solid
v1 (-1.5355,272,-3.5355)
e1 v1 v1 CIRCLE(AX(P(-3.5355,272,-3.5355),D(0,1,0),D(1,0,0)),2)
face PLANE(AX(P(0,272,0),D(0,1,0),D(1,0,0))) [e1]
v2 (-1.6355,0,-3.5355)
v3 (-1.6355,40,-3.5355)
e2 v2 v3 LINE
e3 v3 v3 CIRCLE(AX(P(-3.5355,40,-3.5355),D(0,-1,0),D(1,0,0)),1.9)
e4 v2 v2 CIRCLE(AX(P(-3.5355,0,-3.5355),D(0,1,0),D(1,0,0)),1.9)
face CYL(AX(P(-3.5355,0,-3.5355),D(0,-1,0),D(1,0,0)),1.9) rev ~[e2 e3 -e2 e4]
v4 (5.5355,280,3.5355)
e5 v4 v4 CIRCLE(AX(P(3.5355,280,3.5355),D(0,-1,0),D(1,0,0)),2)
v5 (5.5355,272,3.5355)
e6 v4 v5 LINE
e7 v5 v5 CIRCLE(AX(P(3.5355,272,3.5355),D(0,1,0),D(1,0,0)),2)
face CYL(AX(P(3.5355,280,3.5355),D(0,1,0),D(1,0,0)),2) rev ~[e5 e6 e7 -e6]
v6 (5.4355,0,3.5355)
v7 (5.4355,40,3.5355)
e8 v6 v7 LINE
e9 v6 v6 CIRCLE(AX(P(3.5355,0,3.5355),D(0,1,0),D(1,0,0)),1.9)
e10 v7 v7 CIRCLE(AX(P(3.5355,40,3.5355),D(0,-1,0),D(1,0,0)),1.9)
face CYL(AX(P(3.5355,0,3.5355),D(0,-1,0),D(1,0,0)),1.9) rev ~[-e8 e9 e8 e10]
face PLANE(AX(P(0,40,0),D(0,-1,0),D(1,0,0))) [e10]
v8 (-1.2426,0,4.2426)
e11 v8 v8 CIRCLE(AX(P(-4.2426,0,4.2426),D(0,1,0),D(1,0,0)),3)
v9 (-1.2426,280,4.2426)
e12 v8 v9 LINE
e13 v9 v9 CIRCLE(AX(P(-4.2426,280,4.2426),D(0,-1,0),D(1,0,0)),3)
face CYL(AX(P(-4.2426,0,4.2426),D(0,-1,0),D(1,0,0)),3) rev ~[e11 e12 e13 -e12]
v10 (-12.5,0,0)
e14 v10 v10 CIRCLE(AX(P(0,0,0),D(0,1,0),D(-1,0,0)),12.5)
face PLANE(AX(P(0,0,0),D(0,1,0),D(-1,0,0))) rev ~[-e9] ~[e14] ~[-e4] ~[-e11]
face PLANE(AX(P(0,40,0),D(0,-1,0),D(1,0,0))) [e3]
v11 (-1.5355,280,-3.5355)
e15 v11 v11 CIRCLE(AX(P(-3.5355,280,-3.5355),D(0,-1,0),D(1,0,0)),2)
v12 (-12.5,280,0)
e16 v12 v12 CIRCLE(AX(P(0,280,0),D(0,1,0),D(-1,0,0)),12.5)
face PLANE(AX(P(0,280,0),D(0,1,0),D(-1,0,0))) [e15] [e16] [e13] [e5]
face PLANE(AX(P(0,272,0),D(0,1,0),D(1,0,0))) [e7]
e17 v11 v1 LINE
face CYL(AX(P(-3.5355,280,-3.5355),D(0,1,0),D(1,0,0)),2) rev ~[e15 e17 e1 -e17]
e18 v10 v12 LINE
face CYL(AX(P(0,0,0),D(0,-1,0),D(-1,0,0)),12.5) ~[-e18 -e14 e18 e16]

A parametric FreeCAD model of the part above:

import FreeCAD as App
import Part
import Sketcher

doc = App.newDocument("Part")
body = doc.addObject("PartDesign::Body", "Body")

sketch1 = doc.addObject("Sketcher::SketchObject", "Sketch")
body.addObject(sketch1)
sketch1.AttachmentSupport = (doc.XZ_Plane, [""])
sketch1.MapMode = "FlatFace"
sketch1.addGeometry(Part.Circle(App.Vector(0, 0, 0), App.Vector(0, 0, 1), 12), False)
sketch1.addConstraint([
    Sketcher.Constraint("Coincident", 0, 3, -1, 1),
    Sketcher.Constraint("Diameter", 0, 25.0),
])
pad1 = doc.addObject("PartDesign::Pad", "Pad")
body.addObject(pad1)
pad1.Profile = sketch1
pad1.Length = 280
pad1.Reversed = True

sketch2 = doc.addObject("Sketcher::SketchObject", "Sketch001")
body.addObject(sketch2)
sketch2.AttachmentSupport = (doc.XZ_Plane, [""])
sketch2.MapMode = "FlatFace"
sketch2.addGeometry([
    Part.Circle(App.Vector(3.5, 3.5, 0), App.Vector(0, 0, 1), 1.9),
    Part.Circle(App.Vector(-3.5, -3.5, 0), App.Vector(0, 0, 1), 1.9),
], False)
sketch2.addConstraint([
    Sketcher.Constraint("Equal", 0, 1),
    Sketcher.Constraint("Symmetric", 0, 3, 1, 3, -1, 1),
    Sketcher.Constraint("Diameter", 0, 3.8),
    Sketcher.Constraint("DistanceX", 1, 3, 0, 3, 7.071),
    Sketcher.Constraint("DistanceY", 1, 3, 0, 3, 7.071),
])
pocket1 = doc.addObject("PartDesign::Pocket", "Pocket")
body.addObject(pocket1)
pocket1.Profile = sketch2
pocket1.Length = 40

sketch3 = doc.addObject("Sketcher::SketchObject", "Sketch002")
body.addObject(sketch3)
sketch3.AttachmentSupport = (doc.XZ_Plane, [""])
sketch3.MapMode = "FlatFace"
sketch3.addGeometry(Part.Circle(App.Vector(-4.2, 4.2, 0), App.Vector(0, 0, 1), 3), False)
sketch3.addConstraint([
    Sketcher.Constraint("Diameter", 0, 6.0),
    Sketcher.Constraint("DistanceX", 0, 3, -1, 1, 4.2426),
    Sketcher.Constraint("DistanceY", -1, 1, 0, 3, 4.2426),
])
pocket2 = doc.addObject("PartDesign::Pocket", "Pocket001")
body.addObject(pocket2)
pocket2.Profile = sketch3
pocket2.Type = "ThroughAll"

sketch4 = doc.addObject("Sketcher::SketchObject", "Sketch003")
body.addObject(sketch4)
sketch4.AttachmentSupport = (doc.XZ_Plane, [""])
sketch4.MapMode = "FlatFace"
sketch4.AttachmentOffset = App.Placement(App.Vector(0, 0, -280), App.Rotation())
sketch4.addGeometry([
    Part.Circle(App.Vector(3.5, 3.5, 0), App.Vector(0, 0, 1), 2),
    Part.Circle(App.Vector(-3.5, -3.5, 0), App.Vector(0, 0, 1), 2),
], False)
sketch4.addConstraint([
    Sketcher.Constraint("Equal", 0, 1),
    Sketcher.Constraint("Symmetric", 0, 3, 1, 3, -1, 1),
    Sketcher.Constraint("Diameter", 0, 4.0),
    Sketcher.Constraint("DistanceX", 1, 3, 0, 3, 7.071),
    Sketcher.Constraint("DistanceY", 1, 3, 0, 3, 7.071),
])
pocket3 = doc.addObject("PartDesign::Pocket", "Pocket002")
body.addObject(pocket3)
pocket3.Profile = sketch4
pocket3.Length = 8
pocket3.Reversed = True

doc.recompute()
